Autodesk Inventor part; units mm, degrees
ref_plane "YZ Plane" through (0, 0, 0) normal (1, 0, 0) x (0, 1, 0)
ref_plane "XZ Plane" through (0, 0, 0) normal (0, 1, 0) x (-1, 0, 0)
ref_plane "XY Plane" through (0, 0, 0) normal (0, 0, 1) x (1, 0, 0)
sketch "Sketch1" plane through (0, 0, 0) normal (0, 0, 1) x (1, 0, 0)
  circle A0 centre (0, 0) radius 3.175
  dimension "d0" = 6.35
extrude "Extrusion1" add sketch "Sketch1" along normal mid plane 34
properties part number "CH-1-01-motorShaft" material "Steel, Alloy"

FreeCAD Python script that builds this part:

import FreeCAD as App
import Part
import Sketcher
Q = App.Units.Quantity

doc = App.newDocument("Part")
body = doc.addObject("PartDesign::Body", "Body")

sketch1 = body.newObject("Sketcher::SketchObject", "Sketch")
sketch1.AttachmentSupport = (doc.getObject("XY_Plane"), [""])
sketch1.MapMode = "FlatFace"
sketch1.addGeometry(Part.Circle(App.Vector(0, 0, 0), App.Vector(0, 0, 1), 3.2), False)
sketch1.addConstraint(Sketcher.Constraint("Coincident", 0, 3, -1, 1))
sketch1.addConstraint(Sketcher.Constraint("Diameter", 0, Q("0.25 in")))
pad1 = body.newObject("PartDesign::Pad", "Pad")
pad1.Profile = sketch1
pad1.Length = 34
pad1.Midplane = True

doc.recompute()
